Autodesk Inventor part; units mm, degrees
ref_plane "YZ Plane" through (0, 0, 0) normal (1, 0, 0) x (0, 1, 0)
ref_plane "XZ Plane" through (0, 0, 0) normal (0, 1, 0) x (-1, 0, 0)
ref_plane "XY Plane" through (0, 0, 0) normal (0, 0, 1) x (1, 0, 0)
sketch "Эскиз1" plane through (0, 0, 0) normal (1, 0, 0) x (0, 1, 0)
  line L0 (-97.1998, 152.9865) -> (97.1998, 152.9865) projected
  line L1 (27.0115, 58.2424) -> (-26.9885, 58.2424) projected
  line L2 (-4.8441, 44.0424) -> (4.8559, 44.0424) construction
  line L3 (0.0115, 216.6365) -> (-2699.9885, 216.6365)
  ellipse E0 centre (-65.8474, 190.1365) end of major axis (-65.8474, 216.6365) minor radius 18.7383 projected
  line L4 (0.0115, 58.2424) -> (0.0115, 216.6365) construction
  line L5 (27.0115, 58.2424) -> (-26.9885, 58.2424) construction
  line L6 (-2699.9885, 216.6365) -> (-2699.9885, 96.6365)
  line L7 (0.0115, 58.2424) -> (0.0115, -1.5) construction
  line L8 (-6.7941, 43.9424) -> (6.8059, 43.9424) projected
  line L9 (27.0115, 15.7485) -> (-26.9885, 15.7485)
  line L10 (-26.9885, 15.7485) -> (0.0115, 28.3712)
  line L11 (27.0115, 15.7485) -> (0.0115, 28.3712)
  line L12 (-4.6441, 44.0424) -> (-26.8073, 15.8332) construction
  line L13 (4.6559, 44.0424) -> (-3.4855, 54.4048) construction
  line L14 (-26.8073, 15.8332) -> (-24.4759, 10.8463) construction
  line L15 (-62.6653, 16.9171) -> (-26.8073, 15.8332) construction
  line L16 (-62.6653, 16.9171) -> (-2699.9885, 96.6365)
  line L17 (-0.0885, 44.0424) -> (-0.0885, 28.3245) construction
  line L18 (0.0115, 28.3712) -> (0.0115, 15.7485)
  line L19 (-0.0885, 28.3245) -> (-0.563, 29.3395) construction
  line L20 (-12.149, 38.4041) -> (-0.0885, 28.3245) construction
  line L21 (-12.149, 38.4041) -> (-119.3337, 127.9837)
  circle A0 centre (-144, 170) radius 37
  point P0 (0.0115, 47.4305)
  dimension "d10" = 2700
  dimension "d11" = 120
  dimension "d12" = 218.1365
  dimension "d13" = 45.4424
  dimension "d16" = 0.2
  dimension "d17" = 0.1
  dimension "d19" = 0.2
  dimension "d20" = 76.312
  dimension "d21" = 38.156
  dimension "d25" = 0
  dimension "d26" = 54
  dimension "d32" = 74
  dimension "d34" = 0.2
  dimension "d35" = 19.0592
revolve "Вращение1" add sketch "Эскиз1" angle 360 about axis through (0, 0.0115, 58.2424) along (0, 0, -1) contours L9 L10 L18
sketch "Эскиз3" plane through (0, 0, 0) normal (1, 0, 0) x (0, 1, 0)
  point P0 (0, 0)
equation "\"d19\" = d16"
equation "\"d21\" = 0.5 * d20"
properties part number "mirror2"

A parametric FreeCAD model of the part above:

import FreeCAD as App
import Part
import Sketcher

V = App.Vector
Q = App.Units.Quantity


def add_polygon(sketch, points):
    """Adds a closed chain of lines whose ends are joined by coincident constraints."""
    first, n = sketch.GeometryCount, len(points)
    for a, b in zip(points, points[1:] + points[:1]):
        sketch.addGeometry(Part.LineSegment(App.Vector(*a, 0), App.Vector(*b, 0)), False)
    for i in range(n):
        sketch.addConstraint(Sketcher.Constraint("Coincident", first + i, 2, first + (i + 1) % n, 1))

doc = App.newDocument("Part")
params = doc.addObject("Spreadsheet::Sheet", "Params")
for row, (alias, value) in enumerate([
    ("sketch1_width", "1.063 in"),
    ("revolution_angle", "360 deg"),
], start=1):
    params.set(f"A{row}", alias)
    params.set(f"B{row}", "=" + value)
    params.setAlias(f"B{row}", alias)

body = doc.addObject("PartDesign::Body", "Body")

# Sketch on YZ plane
sketch1 = body.newObject("Sketcher::SketchObject", "Sketch")
sketch1.AttachmentSupport = (doc.getObject("YZ_Plane"), [""])
sketch1.MapMode = "FlatFace"
add_polygon(sketch1, [(-27, 16), (0, 16), (0, 28)])  # lines 0-2
sketch1.addGeometry(Part.LineSegment(V(0, 28, 0), V(0, 16, 0)), True)  # axis
sketch1.addConstraint([
    Sketcher.Constraint("Horizontal", 0),
    Sketcher.Constraint("Vertical", 1),
    Sketcher.Constraint("Vertical", 3),
    Sketcher.Constraint("Coincident", 3, 1, 1, 2),
    Sketcher.Constraint("Horizontal", 2, 2, 3, 2),
    Sketcher.Constraint("DistanceX", 0, 1, 0, 2, Q("1.063 in")),
    Sketcher.Constraint("DistanceY", 1, 1, 1, 2, Q("12.6227 mm")),
    Sketcher.Constraint("DistanceX", -1, 1, 0, 2, Q("0.0115 mm")),
    Sketcher.Constraint("DistanceY", -1, 1, 0, 2, Q("15.7485 mm")),
])
sketch1.setExpression("Constraints[8]", "Params.sketch1_width")
revolution = body.newObject("PartDesign::Revolution", "Revolution")
revolution.Profile = sketch1
revolution.ReferenceAxis = (sketch1, ["Axis0"])
revolution.setExpression("Angle", "Params.revolution_angle")

doc.recompute()
